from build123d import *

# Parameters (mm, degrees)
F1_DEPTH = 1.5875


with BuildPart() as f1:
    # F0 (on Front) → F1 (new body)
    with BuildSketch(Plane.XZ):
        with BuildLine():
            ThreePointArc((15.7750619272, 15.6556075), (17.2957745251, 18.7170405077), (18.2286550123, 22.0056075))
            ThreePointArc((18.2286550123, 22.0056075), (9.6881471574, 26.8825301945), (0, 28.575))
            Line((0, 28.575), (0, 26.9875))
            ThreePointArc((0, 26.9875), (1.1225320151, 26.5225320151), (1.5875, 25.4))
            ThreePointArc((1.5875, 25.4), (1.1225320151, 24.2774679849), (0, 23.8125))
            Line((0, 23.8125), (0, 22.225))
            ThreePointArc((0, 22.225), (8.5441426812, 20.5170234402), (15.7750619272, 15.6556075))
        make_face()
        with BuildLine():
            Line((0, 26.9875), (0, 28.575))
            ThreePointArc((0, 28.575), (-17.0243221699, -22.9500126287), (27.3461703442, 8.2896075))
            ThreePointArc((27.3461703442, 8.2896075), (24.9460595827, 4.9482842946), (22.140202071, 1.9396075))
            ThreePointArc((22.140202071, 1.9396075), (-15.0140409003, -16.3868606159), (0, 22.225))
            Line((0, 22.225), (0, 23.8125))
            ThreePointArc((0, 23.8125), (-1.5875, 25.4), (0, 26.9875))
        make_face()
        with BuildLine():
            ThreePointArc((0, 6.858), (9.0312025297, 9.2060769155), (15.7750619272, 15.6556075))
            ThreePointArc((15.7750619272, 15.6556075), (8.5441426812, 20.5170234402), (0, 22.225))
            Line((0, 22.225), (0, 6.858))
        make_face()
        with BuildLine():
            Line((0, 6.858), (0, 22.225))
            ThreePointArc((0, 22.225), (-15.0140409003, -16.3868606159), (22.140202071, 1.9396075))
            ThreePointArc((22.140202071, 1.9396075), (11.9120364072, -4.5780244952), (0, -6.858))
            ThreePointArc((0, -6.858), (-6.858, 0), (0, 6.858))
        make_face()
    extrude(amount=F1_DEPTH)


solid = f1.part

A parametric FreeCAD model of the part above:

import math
import FreeCAD as App
import Part
import Sketcher

V = App.Vector
Q = App.Units.Quantity

doc = App.newDocument("Part")
params = doc.addObject("Spreadsheet::Sheet", "Params")
for row, (alias, value) in enumerate([
    ("sketch1_radius", "0.73 in"),
    ("sketch1_radius2", "1.27 in"),
    ("sketch1_radius3", "1.125 in"),
    ("sketch1_radius4", "0.0625 in"),
    ("pad1_length", "0.0625 in"),
], start=1):
    params.set(f"A{row}", alias)
    params.set(f"B{row}", "=" + value)
    params.setAlias(f"B{row}", alias)

body = doc.addObject("PartDesign::Body", "Body")

# Sketch on XZ plane
sketch1 = body.newObject("Sketcher::SketchObject", "Sketch")
sketch1.AttachmentSupport = (doc.getObject("XZ_Plane"), [""])
sketch1.MapMode = "FlatFace"
sketch1.addGeometry([
    Part.ArcOfCircle(Part.Circle(V(0, 25.4, 0), V(0, 0, 1), 18.542), math.radians(-31.703985), math.radians(-10.548343)),  # 0
    Part.ArcOfCircle(Part.Circle(V(0, 0, 0), V(0, 0, 1), 28.575), math.radians(50.36287), math.radians(90)),  # 1
    Part.ArcOfCircle(Part.Circle(V(0, 0, 0), V(0, 0, 1), 28.575), math.radians(90), math.radians(376.863943)),  # 2
    Part.ArcOfCircle(Part.Circle(V(0, 25.4, 0), V(0, 0, 1), 32.258), math.radians(-46.658316), math.radians(-32.034055)),  # 3
    Part.ArcOfCircle(Part.Circle(V(0, 25.4, 0), V(0, 0, 1), 32.258), math.radians(-90), math.radians(-46.658316)),  # 4
    Part.ArcOfCircle(Part.Circle(V(0, 0, 0), V(0, 0, 1), 6.858), math.radians(90), math.radians(270)),  # 5
    Part.ArcOfCircle(Part.Circle(V(0, 25.4, 0), V(0, 0, 1), 18.542), math.radians(-90), math.radians(-31.703985)),  # 6
    Part.ArcOfCircle(Part.Circle(V(0, 25.4, 0), V(0, 0, 1), 1.5875), math.radians(0), math.radians(90)),  # 7
    Part.ArcOfCircle(Part.Circle(V(0, 25.4, 0), V(0, 0, 1), 1.5875), math.radians(-90), math.radians(0)),  # 8
    Part.ArcOfCircle(Part.Circle(V(0, 25.4, 0), V(0, 0, 1), 1.5875), math.radians(90), math.radians(270)),  # 9
], False)
sketch1.addConstraint([
    Sketcher.Constraint("Coincident", 0, 2, 1, 1),
    Sketcher.Constraint("Tangent", 1, 2, 2, 1),
    Sketcher.Constraint("Coincident", 2, 2, 3, 2),
    Sketcher.Constraint("Tangent", 3, 1, 4, 2),
    Sketcher.Constraint("Tangent", 4, 1, 5, 2),
    Sketcher.Constraint("Tangent", 5, 1, 6, 1),
    Sketcher.Constraint("Tangent", 6, 2, 0, 1),
    Sketcher.Constraint("Tangent", 7, 1, 8, 2),
    Sketcher.Constraint("Tangent", 8, 1, 9, 2),
    Sketcher.Constraint("Tangent", 9, 1, 7, 2),
    Sketcher.Constraint("Coincident", 1, 3, -1, 1),
    Sketcher.Constraint("Coincident", 5, 3, -1, 1),
    Sketcher.Constraint("Coincident", 3, 3, 0, 3),
    Sketcher.Constraint("Coincident", 7, 3, 0, 3),
    Sketcher.Constraint("Equal", 1, 2),
    Sketcher.Constraint("Equal", 3, 4),
    Sketcher.Constraint("Equal", 0, 6),
    Sketcher.Constraint("PointOnObject", 0, 3, -2),
    Sketcher.Constraint("PointOnObject", 1, 2, -2),
    Sketcher.Constraint("PointOnObject", 8, 1, -2),
    Sketcher.Constraint("PointOnObject", 9, 1, -2),
    Sketcher.Constraint("Horizontal", 9, 3, 7, 1),
    Sketcher.Constraint("Radius", 0, Q("0.73 in")),
    Sketcher.Constraint("Radius", 3, Q("1.27 in")),
    Sketcher.Constraint("Radius", 1, Q("1.125 in")),
    Sketcher.Constraint("Radius", 7, Q("0.0625 in")),
    Sketcher.Constraint("DistanceY", 3, 1, 2, 2, Q("0.25 in")),
    Sketcher.Constraint("DistanceY", 6, 2, 0, 2, Q("0.25 in")),
])
sketch1.setExpression("Constraints[22]", "Params.sketch1_radius")
sketch1.setExpression("Constraints[23]", "Params.sketch1_radius2")
sketch1.setExpression("Constraints[24]", "Params.sketch1_radius3")
sketch1.setExpression("Constraints[25]", "Params.sketch1_radius4")
pad1 = body.newObject("PartDesign::Pad", "Pad")
pad1.Profile = sketch1
pad1.setExpression("Length", "Params.pad1_length")

doc.recompute()
